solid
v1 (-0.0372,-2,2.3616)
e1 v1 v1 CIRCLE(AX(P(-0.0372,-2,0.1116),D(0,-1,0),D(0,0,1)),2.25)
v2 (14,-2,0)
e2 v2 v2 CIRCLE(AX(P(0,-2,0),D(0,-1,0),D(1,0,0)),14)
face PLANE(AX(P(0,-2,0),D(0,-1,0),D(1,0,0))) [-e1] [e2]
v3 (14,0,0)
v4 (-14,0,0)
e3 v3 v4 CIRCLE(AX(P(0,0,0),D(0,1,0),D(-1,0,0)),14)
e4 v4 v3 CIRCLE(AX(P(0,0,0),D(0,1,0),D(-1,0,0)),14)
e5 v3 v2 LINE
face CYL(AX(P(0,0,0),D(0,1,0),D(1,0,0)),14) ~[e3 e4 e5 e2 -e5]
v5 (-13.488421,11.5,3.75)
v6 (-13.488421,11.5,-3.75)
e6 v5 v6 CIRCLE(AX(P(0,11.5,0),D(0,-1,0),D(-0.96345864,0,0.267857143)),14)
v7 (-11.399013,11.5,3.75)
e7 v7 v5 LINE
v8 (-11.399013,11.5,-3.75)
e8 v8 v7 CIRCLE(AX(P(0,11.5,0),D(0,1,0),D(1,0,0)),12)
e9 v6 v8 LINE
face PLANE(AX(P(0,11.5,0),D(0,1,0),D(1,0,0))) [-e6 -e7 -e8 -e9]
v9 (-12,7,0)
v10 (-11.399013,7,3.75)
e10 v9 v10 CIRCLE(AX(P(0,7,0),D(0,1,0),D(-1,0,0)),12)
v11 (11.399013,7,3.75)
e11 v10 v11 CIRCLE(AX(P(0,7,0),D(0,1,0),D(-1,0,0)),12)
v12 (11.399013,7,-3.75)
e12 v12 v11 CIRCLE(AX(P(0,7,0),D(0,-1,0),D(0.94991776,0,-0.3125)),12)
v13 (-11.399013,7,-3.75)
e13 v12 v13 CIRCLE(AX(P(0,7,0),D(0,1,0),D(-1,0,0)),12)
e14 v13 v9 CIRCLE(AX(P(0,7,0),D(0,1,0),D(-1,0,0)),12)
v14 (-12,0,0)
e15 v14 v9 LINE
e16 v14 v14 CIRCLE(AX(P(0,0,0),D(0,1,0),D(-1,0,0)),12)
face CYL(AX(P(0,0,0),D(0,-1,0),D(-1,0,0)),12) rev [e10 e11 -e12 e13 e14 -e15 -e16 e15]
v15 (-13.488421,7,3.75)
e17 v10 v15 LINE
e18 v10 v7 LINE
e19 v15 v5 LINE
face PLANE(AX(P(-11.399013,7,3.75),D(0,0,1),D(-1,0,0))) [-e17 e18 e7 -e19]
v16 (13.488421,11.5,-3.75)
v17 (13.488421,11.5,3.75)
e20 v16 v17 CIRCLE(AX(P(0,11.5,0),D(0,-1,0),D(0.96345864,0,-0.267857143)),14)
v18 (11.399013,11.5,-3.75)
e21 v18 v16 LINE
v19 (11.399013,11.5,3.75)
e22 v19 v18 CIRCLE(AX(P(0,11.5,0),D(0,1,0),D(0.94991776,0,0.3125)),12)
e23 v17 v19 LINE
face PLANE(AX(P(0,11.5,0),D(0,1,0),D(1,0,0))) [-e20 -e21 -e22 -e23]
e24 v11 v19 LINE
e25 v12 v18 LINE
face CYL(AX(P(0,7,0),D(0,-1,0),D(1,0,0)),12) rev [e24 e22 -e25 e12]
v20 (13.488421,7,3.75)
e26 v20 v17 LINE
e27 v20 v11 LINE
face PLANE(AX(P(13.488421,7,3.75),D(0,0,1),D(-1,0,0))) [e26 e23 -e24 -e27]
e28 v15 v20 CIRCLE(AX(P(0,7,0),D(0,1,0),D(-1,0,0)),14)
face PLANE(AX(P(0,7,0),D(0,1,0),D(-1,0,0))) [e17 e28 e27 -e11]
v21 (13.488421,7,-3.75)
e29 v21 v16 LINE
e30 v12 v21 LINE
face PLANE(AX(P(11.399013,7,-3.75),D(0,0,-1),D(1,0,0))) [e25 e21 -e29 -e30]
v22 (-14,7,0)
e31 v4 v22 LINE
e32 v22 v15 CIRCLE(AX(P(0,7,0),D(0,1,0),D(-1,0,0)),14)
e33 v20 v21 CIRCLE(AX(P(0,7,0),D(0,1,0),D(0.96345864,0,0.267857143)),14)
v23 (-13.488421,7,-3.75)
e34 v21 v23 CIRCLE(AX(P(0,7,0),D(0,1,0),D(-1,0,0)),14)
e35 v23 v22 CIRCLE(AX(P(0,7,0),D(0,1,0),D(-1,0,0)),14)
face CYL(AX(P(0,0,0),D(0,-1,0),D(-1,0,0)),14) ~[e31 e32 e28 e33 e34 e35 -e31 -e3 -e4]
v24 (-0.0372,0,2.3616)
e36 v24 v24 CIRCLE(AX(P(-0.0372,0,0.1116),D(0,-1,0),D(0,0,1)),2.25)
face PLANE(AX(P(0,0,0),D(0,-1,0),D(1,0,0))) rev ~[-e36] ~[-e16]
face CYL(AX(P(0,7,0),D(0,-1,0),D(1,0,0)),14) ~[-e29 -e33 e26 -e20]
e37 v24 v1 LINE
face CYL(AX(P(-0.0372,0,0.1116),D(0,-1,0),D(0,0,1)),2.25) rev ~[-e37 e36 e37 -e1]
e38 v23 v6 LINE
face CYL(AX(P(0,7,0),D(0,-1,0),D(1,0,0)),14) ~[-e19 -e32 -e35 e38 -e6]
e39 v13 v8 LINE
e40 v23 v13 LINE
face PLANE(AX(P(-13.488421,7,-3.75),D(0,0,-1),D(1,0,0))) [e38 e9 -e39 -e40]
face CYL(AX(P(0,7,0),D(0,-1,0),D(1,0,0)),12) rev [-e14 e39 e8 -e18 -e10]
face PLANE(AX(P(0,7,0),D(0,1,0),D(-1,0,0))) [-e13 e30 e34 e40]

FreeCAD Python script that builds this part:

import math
import FreeCAD as App
import Part
import Sketcher

doc = App.newDocument("Part")
params = doc.addObject("Spreadsheet::Sheet", "Params")
for row, (alias, value) in enumerate([
    ("sketch1_diameter", "28 mm"),
    ("sketch1_diameter2", "24 mm"),
    ("pad1_length", "7 mm"),
    ("sketch2_diameter", "28 mm"),
    ("pad2_length", "2 mm"),
    ("sketch3_diameter", "4.5 mm"),
    ("hole_diameter", "4.5 mm"),
    ("sketch4_radius", "14 mm"),
    ("sketch4_radius2", "12 mm"),
    ("pad3_length", "4.5 mm"),
], start=1):
    params.set(f"A{row}", alias)
    params.set(f"B{row}", "=" + value)
    params.setAlias(f"B{row}", alias)

body = doc.addObject("PartDesign::Body", "Body")

# Sketch on XZ plane
sketch1 = body.newObject("Sketcher::SketchObject", "Sketch")
sketch1.AttachmentSupport = (doc.getObject("XZ_Plane"), [""])
sketch1.MapMode = "FlatFace"
sketch1.addGeometry(Part.Circle(App.Vector(0, 0, 0), App.Vector(0, 0, 1), 14), False)
sketch1.addGeometry(Part.Circle(App.Vector(0, 0, 0), App.Vector(0, 0, 1), 12), False)
sketch1.addConstraint(Sketcher.Constraint("Coincident", 0, 3, -1, 1))
sketch1.addConstraint(Sketcher.Constraint("Coincident", 1, 3, -1, 1))
sketch1.addConstraint(Sketcher.Constraint("Diameter", 0, 28.0))
sketch1.addConstraint(Sketcher.Constraint("Diameter", 1, 24.0))
sketch1.setExpression("Constraints[2]", "Params.sketch1_diameter")
sketch1.setExpression("Constraints[3]", "Params.sketch1_diameter2")
pad1 = body.newObject("PartDesign::Pad", "Pad")
pad1.Profile = sketch1
pad1.setExpression("Length", "Params.pad1_length")
pad1.Reversed = True

# Sketch on XZ plane
sketch2 = body.newObject("Sketcher::SketchObject", "Sketch001")
sketch2.AttachmentSupport = (doc.getObject("XZ_Plane"), [""])
sketch2.MapMode = "FlatFace"
sketch2.addGeometry(Part.Circle(App.Vector(0, 0, 0), App.Vector(0, 0, 1), 14), False)
sketch2.addConstraint(Sketcher.Constraint("Coincident", 0, 3, -1, 1))
sketch2.addConstraint(Sketcher.Constraint("Diameter", 0, 28.0))
sketch2.setExpression("Constraints[1]", "Params.sketch2_diameter")
pad2 = body.newObject("PartDesign::Pad", "Pad001")
pad2.Profile = sketch2
pad2.setExpression("Length", "Params.pad2_length")

# Sketch on XZ plane
sketch3 = body.newObject("Sketcher::SketchObject", "Sketch002")
sketch3.AttachmentSupport = (doc.getObject("XZ_Plane"), [""])
sketch3.MapMode = "FlatFace"
sketch3.addGeometry(Part.Circle(App.Vector(0, 0.1, 0), App.Vector(0, 0, 1), 2.2), False)
sketch3.addConstraint(Sketcher.Constraint("Diameter", 0, 4.5))
sketch3.addConstraint(Sketcher.Constraint("DistanceX", 0, 3, -1, 1, 0.0372))
sketch3.addConstraint(Sketcher.Constraint("DistanceY", -1, 1, 0, 3, 0.1116))
sketch3.setExpression("Constraints[0]", "Params.sketch3_diameter")
doc.recompute()
hole = body.newObject("PartDesign::Hole", "Hole")
hole.Profile = sketch3
hole.ThreadType = "None"
hole.setExpression("Diameter", "Params.hole_diameter")
hole.DepthType = "ThroughAll"
hole.Reversed = True

# Sketch on XZ plane
sketch4 = body.newObject("Sketcher::SketchObject", "Sketch003")
sketch4.AttachmentSupport = (doc.getObject("XZ_Plane"), [""])
sketch4.MapMode = "FlatFace"
sketch4.AttachmentOffset = App.Placement(App.Vector(0, 0, -7), App.Rotation())
sketch4.addGeometry(Part.LineSegment(App.Vector(11.4, 3.8, 0), App.Vector(13.5, 3.8, 0)), False)
sketch4.addGeometry(Part.ArcOfCircle(Part.Circle(App.Vector(0, 0, 0), App.Vector(0, 0, 1), 14), math.radians(-16), math.radians(16)), False)
sketch4.addGeometry(Part.LineSegment(App.Vector(13.5, -3.8, 0), App.Vector(11.4, -3.8, 0)), False)
sketch4.addGeometry(Part.ArcOfCircle(Part.Circle(App.Vector(0, 0, 0), App.Vector(0, 0, 1), 12), math.radians(-18), math.radians(18)), False)
sketch4.addGeometry(Part.ArcOfCircle(Part.Circle(App.Vector(0, 0, 0), App.Vector(0, 0, 1), 14), math.radians(164), math.radians(196)), False)
sketch4.addGeometry(Part.LineSegment(App.Vector(-13.5, 3.8, 0), App.Vector(-11.4, 3.8, 0)), False)
sketch4.addGeometry(Part.ArcOfCircle(Part.Circle(App.Vector(0, 0, 0), App.Vector(0, 0, 1), 12), math.radians(162), math.radians(198)), False)
sketch4.addGeometry(Part.LineSegment(App.Vector(-11.4, -3.8, 0), App.Vector(-13.5, -3.8, 0)), False)
sketch4.addConstraint(Sketcher.Constraint("Coincident", 0, 2, 1, 2))
sketch4.addConstraint(Sketcher.Constraint("Coincident", 1, 1, 2, 1))
sketch4.addConstraint(Sketcher.Constraint("Coincident", 2, 2, 3, 1))
sketch4.addConstraint(Sketcher.Constraint("Coincident", 3, 2, 0, 1))
sketch4.addConstraint(Sketcher.Constraint("Coincident", 4, 1, 5, 1))
sketch4.addConstraint(Sketcher.Constraint("Coincident", 5, 2, 6, 1))
sketch4.addConstraint(Sketcher.Constraint("Coincident", 6, 2, 7, 1))
sketch4.addConstraint(Sketcher.Constraint("Coincident", 7, 2, 4, 2))
sketch4.addConstraint(Sketcher.Constraint("Horizontal", 0))
sketch4.addConstraint(Sketcher.Constraint("Horizontal", 2))
sketch4.addConstraint(Sketcher.Constraint("Horizontal", 5))
sketch4.addConstraint(Sketcher.Constraint("Horizontal", 7))
sketch4.addConstraint(Sketcher.Constraint("Coincident", 1, 3, -1, 1))
sketch4.addConstraint(Sketcher.Constraint("Coincident", 3, 3, -1, 1))
sketch4.addConstraint(Sketcher.Constraint("Coincident", 4, 3, -1, 1))
sketch4.addConstraint(Sketcher.Constraint("Coincident", 6, 3, -1, 1))
sketch4.addConstraint(Sketcher.Constraint("Equal", 1, 4))
sketch4.addConstraint(Sketcher.Constraint("Equal", 3, 6))
sketch4.addConstraint(Sketcher.Constraint("Horizontal", 3, 2, 4, 1))
sketch4.addConstraint(Sketcher.Constraint("Horizontal", 2, 2, 6, 2))
sketch4.addConstraint(Sketcher.Constraint("Vertical", 0, 2, 1, 1))
sketch4.addConstraint(Sketcher.Constraint("Radius", 1, 14.0))
sketch4.addConstraint(Sketcher.Constraint("Radius", 3, 12.0))
sketch4.addConstraint(Sketcher.Constraint("DistanceY", 1, 1, 0, 2, 7.5))
sketch4.setExpression("Constraints[21]", "Params.sketch4_radius")
sketch4.setExpression("Constraints[22]", "Params.sketch4_radius2")
pad3 = body.newObject("PartDesign::Pad", "Pad002")
pad3.Profile = sketch4
pad3.setExpression("Length", "Params.pad3_length")
pad3.Reversed = True

doc.recompute()
